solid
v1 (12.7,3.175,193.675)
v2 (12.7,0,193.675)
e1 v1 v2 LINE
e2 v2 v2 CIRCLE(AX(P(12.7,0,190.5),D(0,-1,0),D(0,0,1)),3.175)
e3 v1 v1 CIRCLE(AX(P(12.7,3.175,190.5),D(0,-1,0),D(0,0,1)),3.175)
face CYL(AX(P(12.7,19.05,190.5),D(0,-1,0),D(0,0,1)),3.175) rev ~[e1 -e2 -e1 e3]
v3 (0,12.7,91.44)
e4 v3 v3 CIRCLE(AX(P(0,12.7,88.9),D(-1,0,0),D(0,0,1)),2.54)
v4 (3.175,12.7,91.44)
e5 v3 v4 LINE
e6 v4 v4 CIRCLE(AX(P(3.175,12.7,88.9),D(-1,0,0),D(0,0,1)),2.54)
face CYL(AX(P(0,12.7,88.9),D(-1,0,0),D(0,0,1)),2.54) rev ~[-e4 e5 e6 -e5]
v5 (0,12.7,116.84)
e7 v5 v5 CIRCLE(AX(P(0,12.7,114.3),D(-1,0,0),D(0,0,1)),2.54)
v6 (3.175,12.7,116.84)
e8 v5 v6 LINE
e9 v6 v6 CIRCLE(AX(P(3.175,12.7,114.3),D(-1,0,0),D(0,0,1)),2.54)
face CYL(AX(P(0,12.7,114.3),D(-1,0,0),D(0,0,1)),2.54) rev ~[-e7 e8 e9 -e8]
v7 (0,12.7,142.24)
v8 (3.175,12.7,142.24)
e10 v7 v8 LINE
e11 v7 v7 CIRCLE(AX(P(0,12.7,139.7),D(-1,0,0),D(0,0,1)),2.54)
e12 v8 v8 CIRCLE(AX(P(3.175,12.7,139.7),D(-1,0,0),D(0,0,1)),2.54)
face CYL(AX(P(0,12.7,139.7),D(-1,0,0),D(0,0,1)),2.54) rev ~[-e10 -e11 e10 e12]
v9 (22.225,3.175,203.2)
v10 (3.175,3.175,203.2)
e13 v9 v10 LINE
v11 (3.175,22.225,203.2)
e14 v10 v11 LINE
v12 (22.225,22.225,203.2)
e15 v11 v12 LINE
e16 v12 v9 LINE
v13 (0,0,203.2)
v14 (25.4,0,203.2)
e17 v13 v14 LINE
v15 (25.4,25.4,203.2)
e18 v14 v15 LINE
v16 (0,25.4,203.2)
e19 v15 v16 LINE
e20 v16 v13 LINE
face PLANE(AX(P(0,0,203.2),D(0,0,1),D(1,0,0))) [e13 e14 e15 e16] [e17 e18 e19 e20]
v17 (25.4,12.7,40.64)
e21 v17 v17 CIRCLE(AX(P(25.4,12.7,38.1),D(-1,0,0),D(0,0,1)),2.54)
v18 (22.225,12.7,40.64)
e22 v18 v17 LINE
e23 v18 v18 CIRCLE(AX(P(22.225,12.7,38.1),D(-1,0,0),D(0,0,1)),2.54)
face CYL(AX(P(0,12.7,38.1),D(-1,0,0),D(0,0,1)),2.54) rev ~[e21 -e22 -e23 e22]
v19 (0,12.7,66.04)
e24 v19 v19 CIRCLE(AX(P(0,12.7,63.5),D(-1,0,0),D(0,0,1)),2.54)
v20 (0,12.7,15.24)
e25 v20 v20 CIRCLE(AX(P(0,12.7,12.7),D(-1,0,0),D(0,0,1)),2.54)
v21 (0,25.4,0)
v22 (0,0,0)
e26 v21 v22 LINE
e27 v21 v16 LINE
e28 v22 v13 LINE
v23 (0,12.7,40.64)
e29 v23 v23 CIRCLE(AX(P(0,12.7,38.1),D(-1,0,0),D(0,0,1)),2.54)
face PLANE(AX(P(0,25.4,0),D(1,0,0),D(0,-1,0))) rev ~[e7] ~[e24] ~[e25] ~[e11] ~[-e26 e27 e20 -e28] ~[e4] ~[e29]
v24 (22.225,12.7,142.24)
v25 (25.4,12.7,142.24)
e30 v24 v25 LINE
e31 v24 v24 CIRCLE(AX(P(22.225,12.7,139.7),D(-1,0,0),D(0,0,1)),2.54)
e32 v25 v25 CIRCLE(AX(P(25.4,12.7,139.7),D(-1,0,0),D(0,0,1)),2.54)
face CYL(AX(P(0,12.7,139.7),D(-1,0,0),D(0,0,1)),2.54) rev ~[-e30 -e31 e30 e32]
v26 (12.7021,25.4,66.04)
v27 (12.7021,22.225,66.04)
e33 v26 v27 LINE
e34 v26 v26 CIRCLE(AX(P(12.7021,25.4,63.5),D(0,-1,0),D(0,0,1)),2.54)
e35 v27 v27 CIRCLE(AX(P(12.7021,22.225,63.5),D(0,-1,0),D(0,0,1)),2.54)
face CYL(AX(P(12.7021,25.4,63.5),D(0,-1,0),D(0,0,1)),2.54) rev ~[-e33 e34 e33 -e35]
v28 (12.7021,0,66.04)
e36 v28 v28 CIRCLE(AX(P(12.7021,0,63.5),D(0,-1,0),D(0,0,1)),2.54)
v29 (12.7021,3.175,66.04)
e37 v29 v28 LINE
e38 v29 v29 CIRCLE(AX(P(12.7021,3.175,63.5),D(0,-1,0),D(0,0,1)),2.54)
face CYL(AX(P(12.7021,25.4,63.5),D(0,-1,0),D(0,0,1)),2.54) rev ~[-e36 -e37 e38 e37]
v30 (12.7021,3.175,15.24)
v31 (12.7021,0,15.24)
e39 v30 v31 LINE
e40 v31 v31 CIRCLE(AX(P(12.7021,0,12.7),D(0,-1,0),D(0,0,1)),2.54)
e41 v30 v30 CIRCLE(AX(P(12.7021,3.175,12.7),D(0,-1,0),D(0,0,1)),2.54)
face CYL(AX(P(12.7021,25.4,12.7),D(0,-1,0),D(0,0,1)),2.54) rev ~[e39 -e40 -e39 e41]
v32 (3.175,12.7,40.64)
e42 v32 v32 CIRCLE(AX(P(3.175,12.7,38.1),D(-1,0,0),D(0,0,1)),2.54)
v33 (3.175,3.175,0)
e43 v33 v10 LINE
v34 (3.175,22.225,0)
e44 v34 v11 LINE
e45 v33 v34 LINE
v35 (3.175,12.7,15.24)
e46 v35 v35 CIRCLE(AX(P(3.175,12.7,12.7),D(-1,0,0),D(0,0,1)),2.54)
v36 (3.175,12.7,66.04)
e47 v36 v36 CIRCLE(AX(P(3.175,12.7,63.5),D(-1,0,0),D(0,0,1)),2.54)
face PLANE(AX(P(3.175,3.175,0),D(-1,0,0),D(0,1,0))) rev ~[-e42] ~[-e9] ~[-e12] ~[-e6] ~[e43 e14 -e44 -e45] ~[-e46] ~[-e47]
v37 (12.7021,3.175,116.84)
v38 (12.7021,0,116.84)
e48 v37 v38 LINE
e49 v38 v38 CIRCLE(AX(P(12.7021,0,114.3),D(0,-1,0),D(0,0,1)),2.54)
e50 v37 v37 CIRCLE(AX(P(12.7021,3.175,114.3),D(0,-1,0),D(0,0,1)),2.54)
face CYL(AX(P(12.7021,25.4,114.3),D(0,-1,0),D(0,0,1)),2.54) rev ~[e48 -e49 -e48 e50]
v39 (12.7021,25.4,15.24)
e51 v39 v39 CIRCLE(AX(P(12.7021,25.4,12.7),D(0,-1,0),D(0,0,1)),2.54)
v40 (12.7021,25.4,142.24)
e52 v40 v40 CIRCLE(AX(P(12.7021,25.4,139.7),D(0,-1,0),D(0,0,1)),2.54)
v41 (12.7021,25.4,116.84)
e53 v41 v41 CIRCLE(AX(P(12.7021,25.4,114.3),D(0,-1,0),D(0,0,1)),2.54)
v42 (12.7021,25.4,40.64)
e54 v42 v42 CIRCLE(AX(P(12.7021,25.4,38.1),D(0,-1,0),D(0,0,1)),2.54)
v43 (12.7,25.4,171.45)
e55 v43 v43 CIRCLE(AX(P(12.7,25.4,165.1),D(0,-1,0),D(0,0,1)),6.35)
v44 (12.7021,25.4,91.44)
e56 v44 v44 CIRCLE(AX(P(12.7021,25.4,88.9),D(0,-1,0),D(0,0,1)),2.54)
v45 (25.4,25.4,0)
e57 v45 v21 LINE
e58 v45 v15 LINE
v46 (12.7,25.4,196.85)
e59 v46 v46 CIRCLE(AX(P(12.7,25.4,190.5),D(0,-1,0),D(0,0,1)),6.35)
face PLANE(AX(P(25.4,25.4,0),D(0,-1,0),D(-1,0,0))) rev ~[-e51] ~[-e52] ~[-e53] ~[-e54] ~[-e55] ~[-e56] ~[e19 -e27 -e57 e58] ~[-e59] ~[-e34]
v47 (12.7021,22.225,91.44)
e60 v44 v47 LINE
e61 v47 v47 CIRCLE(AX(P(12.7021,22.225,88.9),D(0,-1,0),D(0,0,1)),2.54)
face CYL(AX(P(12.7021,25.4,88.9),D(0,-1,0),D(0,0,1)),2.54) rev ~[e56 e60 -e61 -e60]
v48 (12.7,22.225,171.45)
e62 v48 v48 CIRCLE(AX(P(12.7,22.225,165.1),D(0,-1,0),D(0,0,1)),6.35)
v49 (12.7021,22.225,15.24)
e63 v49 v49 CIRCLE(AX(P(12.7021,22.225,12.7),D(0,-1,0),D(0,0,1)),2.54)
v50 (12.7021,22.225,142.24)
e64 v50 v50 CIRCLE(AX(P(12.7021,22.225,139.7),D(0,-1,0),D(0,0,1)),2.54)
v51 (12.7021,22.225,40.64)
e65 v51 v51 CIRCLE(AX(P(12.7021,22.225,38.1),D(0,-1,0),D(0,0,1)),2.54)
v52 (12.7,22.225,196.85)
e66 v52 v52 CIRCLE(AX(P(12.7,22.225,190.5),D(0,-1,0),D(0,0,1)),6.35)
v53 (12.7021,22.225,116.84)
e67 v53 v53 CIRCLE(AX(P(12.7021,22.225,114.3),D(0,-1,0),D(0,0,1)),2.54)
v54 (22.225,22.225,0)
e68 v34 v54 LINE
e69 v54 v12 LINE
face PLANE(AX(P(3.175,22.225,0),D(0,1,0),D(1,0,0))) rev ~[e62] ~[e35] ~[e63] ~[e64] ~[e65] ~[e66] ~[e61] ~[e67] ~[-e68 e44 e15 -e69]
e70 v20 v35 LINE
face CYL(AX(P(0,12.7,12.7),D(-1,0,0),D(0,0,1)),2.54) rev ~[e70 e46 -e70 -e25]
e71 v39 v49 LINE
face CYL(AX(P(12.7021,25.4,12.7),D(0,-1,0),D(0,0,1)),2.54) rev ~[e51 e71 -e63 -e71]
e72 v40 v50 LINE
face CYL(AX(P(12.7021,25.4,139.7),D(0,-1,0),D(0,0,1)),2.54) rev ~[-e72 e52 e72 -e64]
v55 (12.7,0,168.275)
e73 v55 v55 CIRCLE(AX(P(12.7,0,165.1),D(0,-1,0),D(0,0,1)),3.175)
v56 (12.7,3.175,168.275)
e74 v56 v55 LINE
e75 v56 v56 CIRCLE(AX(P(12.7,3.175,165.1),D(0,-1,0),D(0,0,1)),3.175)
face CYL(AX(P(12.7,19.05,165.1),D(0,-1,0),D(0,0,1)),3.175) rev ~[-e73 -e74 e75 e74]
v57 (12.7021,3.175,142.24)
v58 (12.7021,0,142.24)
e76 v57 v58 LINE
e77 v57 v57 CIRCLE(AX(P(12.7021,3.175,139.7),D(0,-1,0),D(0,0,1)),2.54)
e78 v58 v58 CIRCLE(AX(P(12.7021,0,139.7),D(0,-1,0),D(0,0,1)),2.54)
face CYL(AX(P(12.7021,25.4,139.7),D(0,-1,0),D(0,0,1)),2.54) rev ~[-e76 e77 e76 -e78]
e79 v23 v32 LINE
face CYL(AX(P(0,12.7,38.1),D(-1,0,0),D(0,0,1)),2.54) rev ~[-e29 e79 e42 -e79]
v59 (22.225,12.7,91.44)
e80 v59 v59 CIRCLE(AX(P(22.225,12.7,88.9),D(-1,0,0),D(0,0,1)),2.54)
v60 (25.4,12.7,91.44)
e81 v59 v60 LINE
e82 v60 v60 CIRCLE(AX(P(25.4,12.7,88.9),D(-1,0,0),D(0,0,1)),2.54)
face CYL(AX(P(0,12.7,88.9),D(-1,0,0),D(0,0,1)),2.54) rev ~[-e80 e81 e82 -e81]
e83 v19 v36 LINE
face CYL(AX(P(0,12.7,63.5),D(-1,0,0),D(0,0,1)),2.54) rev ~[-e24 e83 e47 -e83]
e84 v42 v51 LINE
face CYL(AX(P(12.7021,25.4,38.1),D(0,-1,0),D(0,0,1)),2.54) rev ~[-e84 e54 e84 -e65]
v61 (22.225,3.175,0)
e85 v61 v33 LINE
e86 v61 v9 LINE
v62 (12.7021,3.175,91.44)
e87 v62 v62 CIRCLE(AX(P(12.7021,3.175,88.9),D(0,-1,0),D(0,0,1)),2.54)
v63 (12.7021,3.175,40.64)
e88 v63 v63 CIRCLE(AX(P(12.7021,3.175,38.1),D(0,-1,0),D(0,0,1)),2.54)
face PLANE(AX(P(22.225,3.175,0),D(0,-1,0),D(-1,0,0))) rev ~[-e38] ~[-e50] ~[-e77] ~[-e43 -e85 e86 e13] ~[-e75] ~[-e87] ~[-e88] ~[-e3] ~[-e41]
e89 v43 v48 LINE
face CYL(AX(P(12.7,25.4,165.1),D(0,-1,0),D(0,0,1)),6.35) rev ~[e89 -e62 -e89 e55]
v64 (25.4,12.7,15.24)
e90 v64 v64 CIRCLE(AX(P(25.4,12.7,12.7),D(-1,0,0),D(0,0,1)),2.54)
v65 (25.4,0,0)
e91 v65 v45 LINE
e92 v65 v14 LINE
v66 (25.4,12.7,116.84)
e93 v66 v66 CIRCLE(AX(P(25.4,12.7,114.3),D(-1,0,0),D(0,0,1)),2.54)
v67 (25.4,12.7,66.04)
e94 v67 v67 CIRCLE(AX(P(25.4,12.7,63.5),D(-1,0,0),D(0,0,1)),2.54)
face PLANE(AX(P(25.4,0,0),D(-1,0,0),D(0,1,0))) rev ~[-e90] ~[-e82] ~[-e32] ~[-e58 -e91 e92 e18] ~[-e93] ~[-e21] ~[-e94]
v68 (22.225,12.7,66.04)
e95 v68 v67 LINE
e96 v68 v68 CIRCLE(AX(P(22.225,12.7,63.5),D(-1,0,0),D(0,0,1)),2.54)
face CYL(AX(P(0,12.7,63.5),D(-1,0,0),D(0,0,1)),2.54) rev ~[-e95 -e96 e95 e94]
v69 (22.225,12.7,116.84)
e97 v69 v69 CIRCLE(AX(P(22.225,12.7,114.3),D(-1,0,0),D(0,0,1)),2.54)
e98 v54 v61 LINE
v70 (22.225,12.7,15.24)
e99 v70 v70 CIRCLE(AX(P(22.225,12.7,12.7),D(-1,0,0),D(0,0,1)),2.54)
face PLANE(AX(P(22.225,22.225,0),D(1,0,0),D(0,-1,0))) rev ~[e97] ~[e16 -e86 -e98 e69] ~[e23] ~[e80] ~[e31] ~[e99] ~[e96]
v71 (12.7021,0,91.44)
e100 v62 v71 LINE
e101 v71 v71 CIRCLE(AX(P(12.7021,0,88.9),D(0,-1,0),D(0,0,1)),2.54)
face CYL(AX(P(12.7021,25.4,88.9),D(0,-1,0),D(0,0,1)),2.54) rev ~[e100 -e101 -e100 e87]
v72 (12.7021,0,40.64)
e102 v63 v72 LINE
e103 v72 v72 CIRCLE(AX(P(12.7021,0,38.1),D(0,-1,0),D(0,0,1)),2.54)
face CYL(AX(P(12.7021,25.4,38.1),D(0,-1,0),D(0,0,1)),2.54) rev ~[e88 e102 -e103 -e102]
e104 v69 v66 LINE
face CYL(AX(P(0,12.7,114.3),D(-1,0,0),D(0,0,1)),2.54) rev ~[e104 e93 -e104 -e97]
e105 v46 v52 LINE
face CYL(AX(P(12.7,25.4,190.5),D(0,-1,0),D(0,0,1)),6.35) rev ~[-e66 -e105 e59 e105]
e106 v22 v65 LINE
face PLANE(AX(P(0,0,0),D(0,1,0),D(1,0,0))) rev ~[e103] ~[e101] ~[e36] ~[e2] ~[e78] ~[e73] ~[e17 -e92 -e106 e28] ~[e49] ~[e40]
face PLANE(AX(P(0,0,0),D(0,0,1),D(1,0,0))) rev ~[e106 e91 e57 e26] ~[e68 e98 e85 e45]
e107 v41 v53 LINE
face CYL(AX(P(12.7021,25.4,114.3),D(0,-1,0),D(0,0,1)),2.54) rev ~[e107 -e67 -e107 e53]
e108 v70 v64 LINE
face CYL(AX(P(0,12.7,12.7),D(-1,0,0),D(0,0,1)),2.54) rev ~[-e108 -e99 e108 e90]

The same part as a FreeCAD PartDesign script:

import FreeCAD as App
import Part
import Sketcher
from FreeCAD import Vector
Q = App.Units.Quantity


def add_polygon(sketch, points):
    """Adds a closed chain of lines whose ends are joined by coincident constraints."""
    first, n = sketch.GeometryCount, len(points)
    for a, b in zip(points, points[1:] + points[:1]):
        sketch.addGeometry(Part.LineSegment(App.Vector(*a, 0), App.Vector(*b, 0)), False)
    for i in range(n):
        sketch.addConstraint(Sketcher.Constraint("Coincident", first + i, 2, first + (i + 1) % n, 1))

doc = App.newDocument("Part")
params = doc.addObject("Spreadsheet::Sheet", "Params")
for row, (alias, value) in enumerate([
    ("sketch1_width", "1 in"),
    ("pad1_length", "8 in"),
    ("sketch2_diameter", "0.2 in"),
    ("sketch3_diameter", "0.25 in"),
    ("hole_diameter", "0.25 in"),
    ("hole_cbore_diameter", "0.5 in"),
    ("hole_cbore_depth", "0.25 in"),
    ("linearpattern_pitch", "1 in"),
    ("sketch4_diameter", "0.2 in"),
    ("hole2_diameter", "0.2 in"),
    ("linearpattern2_pitch", "1 in"),
], start=1):
    params.set(f"A{row}", alias)
    params.set(f"B{row}", "=" + value)
    params.setAlias(f"B{row}", alias)

body = doc.addObject("PartDesign::Body", "Body")

sketch1 = doc.addObject("Sketcher::SketchObject", "Sketch")
body.addObject(sketch1)
sketch1.AttachmentSupport = (doc.XY_Plane, [""])
sketch1.MapMode = "FlatFace"
add_polygon(sketch1, [(0, 25), (0, 0), (25, 0), (25, 25)])
add_polygon(sketch1, [(3, 3), (3, 22), (22, 22), (22, 3)])
sketch1.addConstraint(Sketcher.Constraint("Vertical", 0))
sketch1.addConstraint(Sketcher.Constraint("Horizontal", 1))
sketch1.addConstraint(Sketcher.Constraint("Vertical", 2))
sketch1.addConstraint(Sketcher.Constraint("Horizontal", 3))
sketch1.addConstraint(Sketcher.Constraint("Vertical", 4))
sketch1.addConstraint(Sketcher.Constraint("Horizontal", 5))
sketch1.addConstraint(Sketcher.Constraint("Vertical", 6))
sketch1.addConstraint(Sketcher.Constraint("Horizontal", 7))
sketch1.addConstraint(Sketcher.Constraint("Coincident", 0, 2, -1, 1))
sketch1.addConstraint(Sketcher.Constraint("Equal", 3, 0))
sketch1.addConstraint(Sketcher.Constraint("Equal", 7, 4))
sketch1.addConstraint(Sketcher.Constraint("DistanceX", 1, 1, 1, 2, Q("1 in")))
sketch1.addConstraint(Sketcher.Constraint("DistanceX", -1, 1, 4, 2, Q("0.125 in")))
sketch1.addConstraint(Sketcher.Constraint("DistanceY", -1, 1, 6, 2, Q("0.125 in")))
sketch1.addConstraint(Sketcher.Constraint("DistanceY", 4, 2, 3, 2, Q("0.125 in")))
sketch1.setExpression("Constraints[19]", "Params.sketch1_width")
pad1 = doc.addObject("PartDesign::Pad", "Pad")
body.addObject(pad1)
pad1.Profile = sketch1
pad1.setExpression("Length", "Params.pad1_length")

sketch2 = doc.addObject("Sketcher::SketchObject", "Sketch001")
body.addObject(sketch2)
sketch2.AttachmentSupport = (doc.YZ_Plane, [""])
sketch2.MapMode = "FlatFace"
sketch2.addGeometry(Part.Circle(Vector(12.7, 139.7, 0), Vector(0, 0, 1), 2.5), False)
sketch2.addGeometry(Part.Circle(Vector(12.7, 114.3, 0), Vector(0, 0, 1), 2.5), False)
sketch2.addGeometry(Part.Circle(Vector(12.7, 88.9, 0), Vector(0, 0, 1), 2.5), False)
sketch2.addGeometry(Part.Circle(Vector(12.7, 63.5, 0), Vector(0, 0, 1), 2.5), False)
sketch2.addGeometry(Part.Circle(Vector(12.7, 38.1, 0), Vector(0, 0, 1), 2.5), False)
sketch2.addGeometry(Part.Circle(Vector(12.7, 12.7, 0), Vector(0, 0, 1), 2.5), False)
sketch2.addConstraint(Sketcher.Constraint("Equal", 0, 1))
sketch2.addConstraint(Sketcher.Constraint("Equal", 1, 2))
sketch2.addConstraint(Sketcher.Constraint("Equal", 2, 3))
sketch2.addConstraint(Sketcher.Constraint("Equal", 3, 4))
sketch2.addConstraint(Sketcher.Constraint("Equal", 4, 5))
sketch2.addConstraint(Sketcher.Constraint("Vertical", 0, 3, 1, 3))
sketch2.addConstraint(Sketcher.Constraint("Vertical", 1, 3, 2, 3))
sketch2.addConstraint(Sketcher.Constraint("Vertical", 2, 3, 3, 3))
sketch2.addConstraint(Sketcher.Constraint("Vertical", 3, 3, 4, 3))
sketch2.addConstraint(Sketcher.Constraint("Vertical", 4, 3, 5, 3))
sketch2.addConstraint(Sketcher.Constraint("Diameter", 0, Q("0.2 in")))
sketch2.addConstraint(Sketcher.Constraint("DistanceY", 1, 3, 0, 3, Q("1 in")))
sketch2.addConstraint(Sketcher.Constraint("DistanceY", 2, 3, 1, 3, Q("1 in")))
sketch2.addConstraint(Sketcher.Constraint("DistanceY", 3, 3, 2, 3, Q("1 in")))
sketch2.addConstraint(Sketcher.Constraint("DistanceY", 4, 3, 3, 3, Q("1 in")))
sketch2.addConstraint(Sketcher.Constraint("DistanceY", 5, 3, 4, 3, Q("1 in")))
sketch2.addConstraint(Sketcher.Constraint("DistanceY", -1, 1, 3, 3, Q("2.5 in")))
sketch2.addConstraint(Sketcher.Constraint("DistanceX", -1, 1, 0, 3, Q("0.5 in")))
sketch2.setExpression("Constraints[10]", "Params.sketch2_diameter")
pocket1 = doc.addObject("PartDesign::Pocket", "Pocket")
body.addObject(pocket1)
pocket1.Profile = sketch2
pocket1.Type = "ThroughAll"
pocket1.Reversed = True

sketch3 = doc.addObject("Sketcher::SketchObject", "Sketch002")
body.addObject(sketch3)
sketch3.AttachmentSupport = (doc.XZ_Plane, [""])
sketch3.MapMode = "FlatFace"
sketch3.AttachmentOffset = App.Placement(Vector(0, 0, -1 * 25.4), App.Rotation())
sketch3.addGeometry(Part.Circle(Vector(12.7, 190.5, 0), Vector(0, 0, 1), 3.2), False)
sketch3.addConstraint(Sketcher.Constraint("Diameter", 0, Q("0.25 in")))
sketch3.addConstraint(Sketcher.Constraint("DistanceX", -1, 1, 0, 3, Q("0.5 in")))
sketch3.addConstraint(Sketcher.Constraint("DistanceY", -1, 1, 0, 3, Q("7.5 in")))
sketch3.setExpression("Constraints[0]", "Params.sketch3_diameter")
doc.recompute()
hole = doc.addObject("PartDesign::Hole", "Hole")
body.addObject(hole)
hole.Profile = sketch3
hole.ThreadType = "None"
hole.setExpression("Diameter", "Params.hole_diameter")
hole.DepthType = "ThroughAll"
hole.HoleCutType = "Counterbore"
hole.setExpression("HoleCutDiameter", "Params.hole_cbore_diameter")
hole.setExpression("HoleCutDepth", "Params.hole_cbore_depth")
hole.Reversed = True
doc.recompute()

linearpattern = doc.addObject("PartDesign::LinearPattern", "LinearPattern")
body.addObject(linearpattern)
linearpattern.Originals = [hole]
linearpattern.Direction = (doc.Z_Axis, [""])
linearpattern.Mode = "offset"
linearpattern.setExpression("Offset", "Params.linearpattern_pitch")
linearpattern.Occurrences = 2
linearpattern.Reversed = True
body.Tip = linearpattern

sketch4 = doc.addObject("Sketcher::SketchObject", "Sketch003")
body.addObject(sketch4)
sketch4.AttachmentSupport = (doc.XZ_Plane, [""])
sketch4.MapMode = "FlatFace"
sketch4.AttachmentOffset = App.Placement(Vector(0, 0, -1 * 25.4), App.Rotation())
sketch4.addGeometry(Part.Circle(Vector(12.7, 139.7, 0), Vector(0, 0, 1), 2.5), False)
sketch4.addConstraint(Sketcher.Constraint("Diameter", 0, Q("0.2 in")))
sketch4.addConstraint(Sketcher.Constraint("DistanceY", -1, 1, 0, 3, Q("5.5 in")))
sketch4.addConstraint(Sketcher.Constraint("DistanceX", -1, 1, 0, 3, Q("12.702 mm")))
sketch4.setExpression("Constraints[0]", "Params.sketch4_diameter")
doc.recompute()
hole2 = doc.addObject("PartDesign::Hole", "Hole001")
body.addObject(hole2)
hole2.Profile = sketch4
hole2.ThreadType = "None"
hole2.setExpression("Diameter", "Params.hole2_diameter")
hole2.DepthType = "ThroughAll"
hole2.Reversed = True
doc.recompute()

linearpattern2 = doc.addObject("PartDesign::LinearPattern", "LinearPattern001")
body.addObject(linearpattern2)
linearpattern2.Originals = [hole2]
linearpattern2.Direction = (doc.Z_Axis, [""])
linearpattern2.Mode = "offset"
linearpattern2.setExpression("Offset", "Params.linearpattern2_pitch")
linearpattern2.Occurrences = 6
linearpattern2.Reversed = True
body.Tip = linearpattern2

doc.recompute()
